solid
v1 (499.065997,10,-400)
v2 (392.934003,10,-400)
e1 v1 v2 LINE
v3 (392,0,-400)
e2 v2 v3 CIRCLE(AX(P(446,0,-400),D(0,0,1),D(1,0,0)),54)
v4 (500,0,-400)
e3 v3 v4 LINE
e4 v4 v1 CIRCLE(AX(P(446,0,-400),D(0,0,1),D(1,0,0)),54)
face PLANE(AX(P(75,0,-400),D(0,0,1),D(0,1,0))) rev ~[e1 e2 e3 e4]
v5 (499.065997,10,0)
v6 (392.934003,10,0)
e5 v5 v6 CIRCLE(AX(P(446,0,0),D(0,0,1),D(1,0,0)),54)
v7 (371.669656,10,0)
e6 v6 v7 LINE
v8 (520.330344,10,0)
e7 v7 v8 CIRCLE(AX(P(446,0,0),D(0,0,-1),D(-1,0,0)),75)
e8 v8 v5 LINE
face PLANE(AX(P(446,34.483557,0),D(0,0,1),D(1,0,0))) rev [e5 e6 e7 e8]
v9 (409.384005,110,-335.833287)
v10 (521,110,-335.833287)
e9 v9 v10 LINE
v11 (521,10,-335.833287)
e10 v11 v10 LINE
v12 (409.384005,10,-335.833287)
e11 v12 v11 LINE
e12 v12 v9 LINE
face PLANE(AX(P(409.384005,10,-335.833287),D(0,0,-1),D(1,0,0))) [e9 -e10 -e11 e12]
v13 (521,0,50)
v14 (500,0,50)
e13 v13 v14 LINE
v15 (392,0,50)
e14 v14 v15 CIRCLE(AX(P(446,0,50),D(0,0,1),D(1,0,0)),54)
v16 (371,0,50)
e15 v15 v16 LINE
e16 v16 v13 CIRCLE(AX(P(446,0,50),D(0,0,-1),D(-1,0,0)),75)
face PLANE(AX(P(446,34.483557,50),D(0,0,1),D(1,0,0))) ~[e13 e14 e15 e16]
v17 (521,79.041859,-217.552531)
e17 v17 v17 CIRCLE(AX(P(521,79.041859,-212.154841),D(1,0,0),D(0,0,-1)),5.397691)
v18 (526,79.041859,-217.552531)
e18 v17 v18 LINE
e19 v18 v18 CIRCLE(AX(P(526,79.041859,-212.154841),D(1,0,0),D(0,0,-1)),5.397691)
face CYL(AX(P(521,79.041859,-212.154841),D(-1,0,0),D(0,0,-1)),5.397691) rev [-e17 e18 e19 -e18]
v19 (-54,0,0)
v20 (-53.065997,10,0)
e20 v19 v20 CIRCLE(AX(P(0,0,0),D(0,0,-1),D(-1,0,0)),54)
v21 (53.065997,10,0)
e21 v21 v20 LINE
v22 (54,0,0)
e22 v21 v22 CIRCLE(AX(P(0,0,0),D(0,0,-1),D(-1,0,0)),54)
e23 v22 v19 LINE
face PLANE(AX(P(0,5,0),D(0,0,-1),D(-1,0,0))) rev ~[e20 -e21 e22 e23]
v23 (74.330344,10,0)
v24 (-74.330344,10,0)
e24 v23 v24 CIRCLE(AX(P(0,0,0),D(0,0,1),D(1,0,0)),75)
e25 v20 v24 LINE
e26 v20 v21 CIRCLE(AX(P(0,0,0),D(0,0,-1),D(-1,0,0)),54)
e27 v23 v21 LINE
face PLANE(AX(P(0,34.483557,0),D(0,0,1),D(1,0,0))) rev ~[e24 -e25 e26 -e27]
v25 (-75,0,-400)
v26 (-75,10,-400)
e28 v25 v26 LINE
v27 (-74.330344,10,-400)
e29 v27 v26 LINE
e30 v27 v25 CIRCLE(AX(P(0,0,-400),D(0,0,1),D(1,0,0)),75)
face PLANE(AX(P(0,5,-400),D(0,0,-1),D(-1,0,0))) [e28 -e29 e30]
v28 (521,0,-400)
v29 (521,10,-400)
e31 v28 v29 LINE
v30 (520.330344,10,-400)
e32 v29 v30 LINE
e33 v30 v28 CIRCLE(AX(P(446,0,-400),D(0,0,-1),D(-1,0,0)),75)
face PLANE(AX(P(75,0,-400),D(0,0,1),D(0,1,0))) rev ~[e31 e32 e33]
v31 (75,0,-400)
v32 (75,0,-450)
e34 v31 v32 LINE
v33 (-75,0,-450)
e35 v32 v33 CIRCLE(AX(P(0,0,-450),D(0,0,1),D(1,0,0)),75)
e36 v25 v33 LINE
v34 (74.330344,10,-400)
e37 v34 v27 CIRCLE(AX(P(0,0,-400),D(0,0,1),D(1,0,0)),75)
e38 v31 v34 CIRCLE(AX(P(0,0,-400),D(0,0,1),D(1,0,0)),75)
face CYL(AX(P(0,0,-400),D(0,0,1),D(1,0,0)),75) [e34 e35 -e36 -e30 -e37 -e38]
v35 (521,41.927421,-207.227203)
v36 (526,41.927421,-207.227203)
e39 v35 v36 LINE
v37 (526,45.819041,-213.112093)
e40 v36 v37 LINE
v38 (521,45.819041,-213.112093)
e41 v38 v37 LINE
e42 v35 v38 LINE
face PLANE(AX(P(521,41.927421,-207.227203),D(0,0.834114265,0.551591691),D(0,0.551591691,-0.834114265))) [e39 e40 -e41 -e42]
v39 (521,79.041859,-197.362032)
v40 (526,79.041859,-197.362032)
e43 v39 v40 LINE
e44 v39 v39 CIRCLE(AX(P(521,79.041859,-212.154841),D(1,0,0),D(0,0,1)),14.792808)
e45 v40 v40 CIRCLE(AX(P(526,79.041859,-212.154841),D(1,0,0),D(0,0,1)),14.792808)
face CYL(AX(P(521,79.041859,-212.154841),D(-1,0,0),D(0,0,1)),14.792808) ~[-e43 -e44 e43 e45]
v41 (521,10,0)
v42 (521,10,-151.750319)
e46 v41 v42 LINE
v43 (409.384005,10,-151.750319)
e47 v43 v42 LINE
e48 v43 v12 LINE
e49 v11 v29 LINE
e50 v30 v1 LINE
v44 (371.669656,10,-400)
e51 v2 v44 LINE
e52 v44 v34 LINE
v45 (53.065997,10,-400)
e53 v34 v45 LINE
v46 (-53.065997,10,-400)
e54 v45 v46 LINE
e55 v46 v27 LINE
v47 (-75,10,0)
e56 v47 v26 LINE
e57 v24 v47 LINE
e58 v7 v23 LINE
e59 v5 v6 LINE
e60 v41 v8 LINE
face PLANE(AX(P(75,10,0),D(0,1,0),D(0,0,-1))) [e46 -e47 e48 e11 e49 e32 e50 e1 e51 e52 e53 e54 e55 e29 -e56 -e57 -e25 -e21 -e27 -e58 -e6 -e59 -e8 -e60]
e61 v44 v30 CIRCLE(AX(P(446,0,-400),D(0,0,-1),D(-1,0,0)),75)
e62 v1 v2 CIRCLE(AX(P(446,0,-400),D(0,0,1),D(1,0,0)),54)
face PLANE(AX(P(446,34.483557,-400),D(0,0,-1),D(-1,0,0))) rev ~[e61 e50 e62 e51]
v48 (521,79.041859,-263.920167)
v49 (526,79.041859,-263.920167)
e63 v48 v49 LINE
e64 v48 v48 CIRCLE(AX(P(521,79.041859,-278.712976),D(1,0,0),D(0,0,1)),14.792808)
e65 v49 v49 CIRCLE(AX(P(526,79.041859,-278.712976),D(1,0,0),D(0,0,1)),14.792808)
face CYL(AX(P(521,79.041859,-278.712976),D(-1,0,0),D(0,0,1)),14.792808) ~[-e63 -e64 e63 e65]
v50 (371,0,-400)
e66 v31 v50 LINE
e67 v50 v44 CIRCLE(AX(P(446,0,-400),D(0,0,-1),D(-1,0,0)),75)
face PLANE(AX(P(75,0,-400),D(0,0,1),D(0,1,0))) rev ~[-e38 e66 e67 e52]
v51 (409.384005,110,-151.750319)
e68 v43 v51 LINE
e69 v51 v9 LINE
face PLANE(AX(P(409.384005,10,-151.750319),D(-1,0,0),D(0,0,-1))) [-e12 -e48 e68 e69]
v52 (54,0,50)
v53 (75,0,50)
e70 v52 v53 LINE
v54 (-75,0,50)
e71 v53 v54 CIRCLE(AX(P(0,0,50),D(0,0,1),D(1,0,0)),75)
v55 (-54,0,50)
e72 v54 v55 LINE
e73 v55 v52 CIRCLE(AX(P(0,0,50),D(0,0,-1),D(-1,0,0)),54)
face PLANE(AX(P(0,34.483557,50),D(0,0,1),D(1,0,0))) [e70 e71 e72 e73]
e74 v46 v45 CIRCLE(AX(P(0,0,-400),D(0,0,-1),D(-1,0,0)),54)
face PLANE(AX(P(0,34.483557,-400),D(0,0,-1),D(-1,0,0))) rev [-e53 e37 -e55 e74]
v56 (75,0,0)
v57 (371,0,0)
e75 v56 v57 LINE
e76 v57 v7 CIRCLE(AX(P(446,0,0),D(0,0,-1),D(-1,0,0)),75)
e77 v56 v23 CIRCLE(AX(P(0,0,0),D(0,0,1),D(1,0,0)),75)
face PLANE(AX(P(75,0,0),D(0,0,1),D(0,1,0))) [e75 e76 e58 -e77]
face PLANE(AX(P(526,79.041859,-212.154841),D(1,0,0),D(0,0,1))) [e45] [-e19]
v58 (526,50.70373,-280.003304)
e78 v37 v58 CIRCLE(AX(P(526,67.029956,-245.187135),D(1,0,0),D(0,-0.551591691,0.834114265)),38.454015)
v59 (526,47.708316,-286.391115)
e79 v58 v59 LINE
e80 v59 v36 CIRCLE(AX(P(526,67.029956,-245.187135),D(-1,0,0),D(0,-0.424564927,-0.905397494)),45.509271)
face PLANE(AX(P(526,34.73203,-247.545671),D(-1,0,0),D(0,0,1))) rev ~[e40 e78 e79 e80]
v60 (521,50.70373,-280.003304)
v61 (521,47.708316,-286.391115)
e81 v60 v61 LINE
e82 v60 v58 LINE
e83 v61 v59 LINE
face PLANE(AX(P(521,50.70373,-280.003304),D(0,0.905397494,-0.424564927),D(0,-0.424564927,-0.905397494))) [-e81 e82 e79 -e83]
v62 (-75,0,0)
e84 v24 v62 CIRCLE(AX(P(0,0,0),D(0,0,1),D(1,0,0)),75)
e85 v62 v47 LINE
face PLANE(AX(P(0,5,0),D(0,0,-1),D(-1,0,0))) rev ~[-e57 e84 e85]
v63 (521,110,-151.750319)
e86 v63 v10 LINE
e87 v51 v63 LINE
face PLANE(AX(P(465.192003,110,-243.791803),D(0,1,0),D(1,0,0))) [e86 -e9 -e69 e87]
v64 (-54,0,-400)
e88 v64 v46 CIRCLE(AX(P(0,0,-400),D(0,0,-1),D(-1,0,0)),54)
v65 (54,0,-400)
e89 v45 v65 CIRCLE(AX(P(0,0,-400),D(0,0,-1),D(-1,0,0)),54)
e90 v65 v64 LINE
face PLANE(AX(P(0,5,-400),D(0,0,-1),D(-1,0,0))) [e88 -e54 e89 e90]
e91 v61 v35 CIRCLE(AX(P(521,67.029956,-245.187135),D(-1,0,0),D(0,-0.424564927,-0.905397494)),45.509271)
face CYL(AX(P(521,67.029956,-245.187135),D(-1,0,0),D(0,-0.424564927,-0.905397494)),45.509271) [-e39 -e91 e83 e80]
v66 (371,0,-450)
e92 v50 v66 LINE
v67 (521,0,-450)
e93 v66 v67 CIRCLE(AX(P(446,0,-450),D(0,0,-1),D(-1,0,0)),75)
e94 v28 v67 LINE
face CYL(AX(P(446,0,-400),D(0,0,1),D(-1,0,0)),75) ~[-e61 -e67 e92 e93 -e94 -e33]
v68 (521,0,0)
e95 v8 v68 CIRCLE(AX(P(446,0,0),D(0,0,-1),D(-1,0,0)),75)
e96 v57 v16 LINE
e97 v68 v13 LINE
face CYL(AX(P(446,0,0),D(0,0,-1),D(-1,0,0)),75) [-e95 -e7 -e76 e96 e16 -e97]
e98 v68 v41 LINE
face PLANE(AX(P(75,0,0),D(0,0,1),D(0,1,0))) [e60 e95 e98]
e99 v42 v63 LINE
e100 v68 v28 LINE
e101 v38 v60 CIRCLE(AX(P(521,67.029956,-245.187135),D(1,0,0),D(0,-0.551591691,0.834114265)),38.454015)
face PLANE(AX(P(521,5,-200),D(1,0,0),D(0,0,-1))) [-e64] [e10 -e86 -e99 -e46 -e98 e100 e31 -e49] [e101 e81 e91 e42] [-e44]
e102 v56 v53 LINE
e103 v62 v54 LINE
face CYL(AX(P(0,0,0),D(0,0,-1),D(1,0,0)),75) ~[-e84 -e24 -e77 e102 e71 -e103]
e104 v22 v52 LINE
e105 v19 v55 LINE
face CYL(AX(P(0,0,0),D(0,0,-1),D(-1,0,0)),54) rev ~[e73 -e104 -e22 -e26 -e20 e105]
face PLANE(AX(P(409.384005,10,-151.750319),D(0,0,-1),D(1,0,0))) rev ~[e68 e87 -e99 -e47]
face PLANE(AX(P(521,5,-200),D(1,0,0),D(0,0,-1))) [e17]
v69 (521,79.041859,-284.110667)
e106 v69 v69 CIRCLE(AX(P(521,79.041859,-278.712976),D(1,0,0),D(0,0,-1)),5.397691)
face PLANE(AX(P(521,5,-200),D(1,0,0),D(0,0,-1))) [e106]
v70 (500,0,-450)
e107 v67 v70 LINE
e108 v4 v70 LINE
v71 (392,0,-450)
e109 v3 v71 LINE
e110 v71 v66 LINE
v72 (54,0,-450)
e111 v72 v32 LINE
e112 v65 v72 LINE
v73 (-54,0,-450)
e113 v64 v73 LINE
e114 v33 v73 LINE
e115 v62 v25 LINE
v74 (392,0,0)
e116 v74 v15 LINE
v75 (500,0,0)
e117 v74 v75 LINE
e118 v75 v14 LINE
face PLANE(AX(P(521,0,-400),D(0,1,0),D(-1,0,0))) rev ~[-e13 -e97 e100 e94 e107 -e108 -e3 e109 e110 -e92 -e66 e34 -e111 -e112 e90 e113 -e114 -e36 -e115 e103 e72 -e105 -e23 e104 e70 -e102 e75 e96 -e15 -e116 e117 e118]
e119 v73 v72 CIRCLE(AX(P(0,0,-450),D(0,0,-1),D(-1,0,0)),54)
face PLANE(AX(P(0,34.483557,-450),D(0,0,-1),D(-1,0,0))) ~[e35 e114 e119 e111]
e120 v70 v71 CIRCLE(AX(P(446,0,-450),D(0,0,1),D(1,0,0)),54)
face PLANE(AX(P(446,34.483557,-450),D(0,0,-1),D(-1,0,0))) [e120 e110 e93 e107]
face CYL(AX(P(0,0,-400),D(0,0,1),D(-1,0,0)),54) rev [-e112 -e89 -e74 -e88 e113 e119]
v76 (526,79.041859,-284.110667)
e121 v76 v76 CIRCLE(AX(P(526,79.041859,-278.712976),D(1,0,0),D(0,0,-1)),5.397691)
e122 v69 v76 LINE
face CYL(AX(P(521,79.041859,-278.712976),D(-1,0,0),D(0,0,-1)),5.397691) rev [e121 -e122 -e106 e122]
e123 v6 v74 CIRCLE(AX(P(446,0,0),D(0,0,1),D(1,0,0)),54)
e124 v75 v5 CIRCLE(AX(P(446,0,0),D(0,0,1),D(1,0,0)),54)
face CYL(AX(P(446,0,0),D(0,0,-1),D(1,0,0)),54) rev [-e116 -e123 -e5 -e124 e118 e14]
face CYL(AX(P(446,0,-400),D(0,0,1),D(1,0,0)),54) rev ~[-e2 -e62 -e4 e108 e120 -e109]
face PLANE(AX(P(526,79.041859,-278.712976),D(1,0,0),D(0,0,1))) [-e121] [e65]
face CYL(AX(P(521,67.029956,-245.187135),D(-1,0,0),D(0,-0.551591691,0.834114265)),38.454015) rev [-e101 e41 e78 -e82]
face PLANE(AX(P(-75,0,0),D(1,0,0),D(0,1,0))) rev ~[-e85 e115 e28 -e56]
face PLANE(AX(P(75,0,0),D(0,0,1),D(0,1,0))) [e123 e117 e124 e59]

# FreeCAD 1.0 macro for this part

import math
import FreeCAD as App
import Part
import Sketcher

V = App.Vector

doc = App.newDocument("Part")
body = doc.addObject("PartDesign::Body", "Body")

# Sketch on XY plane
sketch1 = body.newObject("Sketcher::SketchObject", "Sketch")
sketch1.AttachmentSupport = (doc.getObject("XY_Plane"), [""])
sketch1.MapMode = "FlatFace"
sketch1.addGeometry([
    Part.ArcOfCircle(Part.Circle(V(0, 0, 0), V(0, 0, 1), 54), math.radians(0), math.radians(180)),
    Part.LineSegment(V(54, 0, 0), V(75, 0, 0)),
    Part.ArcOfCircle(Part.Circle(V(0, 0, 0), V(0, 0, 1), 75), math.radians(0), math.radians(180)),
    Part.LineSegment(V(-75, 0, 0), V(-54, 0, 0)),
], False)
sketch1.addConstraint([
    Sketcher.Constraint("Coincident", 0, 1, 1, 1),
    Sketcher.Constraint("Coincident", 1, 2, 2, 1),
    Sketcher.Constraint("Coincident", 2, 2, 3, 1),
    Sketcher.Constraint("Coincident", 3, 2, 0, 2),
    Sketcher.Constraint("Horizontal", 1),
    Sketcher.Constraint("Horizontal", 3),
    Sketcher.Constraint("Coincident", 0, 3, -1, 1),
    Sketcher.Constraint("Coincident", 2, 3, -1, 1),
    Sketcher.Constraint("PointOnObject", 0, 1, -1),
    Sketcher.Constraint("PointOnObject", 2, 2, -1),
    Sketcher.Constraint("Radius", 0, 54.0),
    Sketcher.Constraint("Radius", 2, 75.0),
])
pad1 = body.newObject("PartDesign::Pad", "Pad")
pad1.Profile = sketch1
pad1.Length = 50

# Sketch on XY plane
sketch2 = body.newObject("Sketcher::SketchObject", "Sketch001")
sketch2.AttachmentSupport = (doc.getObject("XY_Plane"), [""])
sketch2.MapMode = "FlatFace"
sketch2.addGeometry([
    Part.LineSegment(V(75, 10, 0), V(75, 0, 0)),
    Part.LineSegment(V(75, 0, 0), V(-75, 0, 0)),
    Part.LineSegment(V(-75, 0, 0), V(-75, 10, 0)),
    Part.LineSegment(V(-75, 10, 0), V(75, 10, 0)),
], False)
sketch2.addConstraint([
    Sketcher.Constraint("Coincident", 0, 2, 1, 1),
    Sketcher.Constraint("Coincident", 1, 2, 2, 1),
    Sketcher.Constraint("Coincident", 2, 2, 3, 1),
    Sketcher.Constraint("Coincident", 3, 2, 0, 1),
    Sketcher.Constraint("Vertical", 0),
    Sketcher.Constraint("Horizontal", 1),
    Sketcher.Constraint("Vertical", 2),
    Sketcher.Constraint("Horizontal", 3),
    Sketcher.Constraint("Symmetric", 0, 2, 1, 2, -1, 1),
    Sketcher.Constraint("DistanceX", 1, 2, 1, 1, 150.0),
    Sketcher.Constraint("DistanceY", 0, 2, 0, 1, 10.0),
])
pad2 = body.newObject("PartDesign::Pad", "Pad001")
pad2.Profile = sketch2
pad2.Length = 400
pad2.Reversed = True
doc.recompute()

datumplane = body.newObject("PartDesign::Plane", "DatumPlane")
datumplane.AttachmentSupport = (doc.getObject("XY_Plane"), [""])
datumplane.MapMode = "FlatFace"
datumplane.AttachmentOffset = App.Placement(V(0, 0, -200), App.Rotation())
mirrored = body.newObject("PartDesign::Mirrored", "Mirrored")
mirrored.Originals = [pad1]
mirrored.MirrorPlane = (datumplane, [""])
body.Tip = mirrored

# Sketch on YZ plane
sketch3 = body.newObject("Sketcher::SketchObject", "Sketch002")
sketch3.AttachmentSupport = (doc.getObject("YZ_Plane"), [""])
sketch3.MapMode = "FlatFace"
sketch3.AttachmentOffset = App.Placement(V(0, 0, 75), App.Rotation())
sketch3.addGeometry([
    Part.LineSegment(V(10, 0, 0), V(0, 0, 0)),
    Part.LineSegment(V(0, 0, 0), V(0, -400, 0)),
    Part.LineSegment(V(0, -400, 0), V(10, -400, 0)),
    Part.LineSegment(V(10, -400, 0), V(10, 0, 0)),
], False)
sketch3.addConstraint([
    Sketcher.Constraint("Coincident", 0, 2, 1, 1),
    Sketcher.Constraint("Coincident", 1, 2, 2, 1),
    Sketcher.Constraint("Coincident", 2, 2, 3, 1),
    Sketcher.Constraint("Coincident", 3, 2, 0, 1),
    Sketcher.Constraint("Horizontal", 0),
    Sketcher.Constraint("Vertical", 1),
    Sketcher.Constraint("Horizontal", 2),
    Sketcher.Constraint("Vertical", 3),
    Sketcher.Constraint("Coincident", 0, 2, -1, 1),
    Sketcher.Constraint("DistanceX", 0, 2, 0, 1, 10.0),
    Sketcher.Constraint("DistanceY", 1, 2, 1, 1, 400.0),
])
pad3 = body.newObject("PartDesign::Pad", "Pad002")
pad3.Profile = sketch3
pad3.Length = 446
doc.recompute()

datumplane2 = body.newObject("PartDesign::Plane", "DatumPlane001")
datumplane2.AttachmentSupport = (doc.getObject("YZ_Plane"), [""])
datumplane2.MapMode = "FlatFace"
datumplane2.AttachmentOffset = App.Placement(V(0, 0, 223), App.Rotation())
mirrored2 = body.newObject("PartDesign::Mirrored", "Mirrored001")
mirrored2.Originals = [pad1]
mirrored2.MirrorPlane = (datumplane2, [""])
body.Tip = mirrored2

# Sketch on XY plane
sketch4 = body.newObject("Sketcher::SketchObject", "Sketch003")
sketch4.AttachmentSupport = (doc.getObject("XY_Plane"), [""])
sketch4.MapMode = "FlatFace"
sketch4.AttachmentOffset = App.Placement(V(0, 0, -400), App.Rotation())
sketch4.addGeometry([
    Part.ArcOfCircle(Part.Circle(V(446, 0, 0), V(0, 0, 1), 54), math.radians(0), math.radians(180)),
    Part.LineSegment(V(392, 0, 0), V(371, 0, 0)),
    Part.ArcOfCircle(Part.Circle(V(446, 0, 0), V(0, 0, 1), 75), math.radians(0), math.radians(180)),
    Part.LineSegment(V(521, 0, 0), V(500, 0, 0)),
], False)
sketch4.addConstraint([
    Sketcher.Constraint("Coincident", 0, 2, 1, 1),
    Sketcher.Constraint("Coincident", 1, 2, 2, 2),
    Sketcher.Constraint("Coincident", 2, 1, 3, 1),
    Sketcher.Constraint("Coincident", 3, 2, 0, 1),
    Sketcher.Constraint("Horizontal", 1),
    Sketcher.Constraint("Horizontal", 3),
    Sketcher.Constraint("Coincident", 2, 3, 0, 3),
    Sketcher.Constraint("PointOnObject", 0, 3, -1),
    Sketcher.Constraint("PointOnObject", 0, 2, -1),
    Sketcher.Constraint("PointOnObject", 2, 1, -1),
    Sketcher.Constraint("Radius", 0, 54.0),
    Sketcher.Constraint("Radius", 2, 75.0),
    Sketcher.Constraint("DistanceX", -1, 1, 0, 3, 446.0),
])
pad4 = body.newObject("PartDesign::Pad", "Pad003")
pad4.Profile = sketch4
pad4.Length = 50
pad4.Reversed = True

# Sketch on XZ plane
sketch5 = body.newObject("Sketcher::SketchObject", "Sketch004")
sketch5.AttachmentSupport = (doc.getObject("XZ_Plane"), [""])
sketch5.MapMode = "FlatFace"
sketch5.AttachmentOffset = App.Placement(V(0, 0, -10), App.Rotation())
sketch5.addGeometry([
    Part.LineSegment(V(409, -336, 0), V(409, -152, 0)),
    Part.LineSegment(V(409, -152, 0), V(521, -152, 0)),
    Part.LineSegment(V(521, -152, 0), V(521, -336, 0)),
    Part.LineSegment(V(521, -336, 0), V(409, -336, 0)),
], False)
sketch5.addConstraint([
    Sketcher.Constraint("Coincident", 0, 2, 1, 1),
    Sketcher.Constraint("Coincident", 1, 2, 2, 1),
    Sketcher.Constraint("Coincident", 2, 2, 3, 1),
    Sketcher.Constraint("Coincident", 3, 2, 0, 1),
    Sketcher.Constraint("Vertical", 0),
    Sketcher.Constraint("Horizontal", 1),
    Sketcher.Constraint("Vertical", 2),
    Sketcher.Constraint("Horizontal", 3),
    Sketcher.Constraint("DistanceX", -1, 1, 1, 2, 521.0),
    Sketcher.Constraint("DistanceY", 0, 1, 0, 2, 184.082968),
    Sketcher.Constraint("DistanceX", 1, 1, 1, 2, 111.615995),
    Sketcher.Constraint("DistanceY", 0, 2, -1, 1, 151.750319),
])
pad5 = body.newObject("PartDesign::Pad", "Pad004")
pad5.Profile = sketch5
pad5.Length = 100
pad5.Reversed = True

# Sketch on YZ plane
sketch6 = body.newObject("Sketcher::SketchObject", "Sketch005")
sketch6.AttachmentSupport = (doc.getObject("YZ_Plane"), [""])
sketch6.MapMode = "FlatFace"
sketch6.AttachmentOffset = App.Placement(V(0, 0, 521), App.Rotation())
sketch6.addGeometry([
    Part.Circle(V(79, -212, 0), V(0, 0, 1), 15),  # 0
    Part.Circle(V(79, -212, 0), V(0, 0, 1), 5),  # 1
    Part.Circle(V(79, -279, 0), V(0, 0, 1), 15),  # 2
    Part.Circle(V(79, -279, 0), V(0, 0, 1), 5),  # 3
    Part.LineSegment(V(48, -286, 0), V(51, -280, 0)),  # 4
    Part.ArcOfCircle(Part.Circle(V(67, -245, 0), V(0, 0, 1), 38), math.radians(123), math.radians(245)),  # 5
    Part.LineSegment(V(46, -213, 0), V(42, -207, 0)),  # 6
    Part.ArcOfCircle(Part.Circle(V(67, -245, 0), V(0, 0, 1), 46), math.radians(123), math.radians(245)),  # 7
], False)
sketch6.addConstraint([
    Sketcher.Constraint("Coincident", 4, 2, 5, 2),
    Sketcher.Constraint("Coincident", 5, 1, 6, 1),
    Sketcher.Constraint("Coincident", 6, 2, 7, 1),
    Sketcher.Constraint("Coincident", 7, 2, 4, 1),
    Sketcher.Constraint("Coincident", 1, 3, 0, 3),
    Sketcher.Constraint("Coincident", 3, 3, 2, 3),
    Sketcher.Constraint("Coincident", 7, 3, 5, 3),
    Sketcher.Constraint("Equal", 0, 2),
    Sketcher.Constraint("Equal", 1, 3),
    Sketcher.Constraint("Vertical", 1, 3, 2, 3),
    Sketcher.Constraint("Diameter", 1, 10.795382),
    Sketcher.Constraint("Radius", 7, 45.509271),
    Sketcher.Constraint("Diameter", 0, 29.585616),
    Sketcher.Constraint("Radius", 5, 38.454015),
    Sketcher.Constraint("DistanceX", -1, 1, 0, 3, 79.041859),
    Sketcher.Constraint("DistanceY", 0, 3, -1, 1, 212.154841),
    Sketcher.Constraint("DistanceX", -1, 1, 4, 2, 50.70373),
    Sketcher.Constraint("DistanceX", -1, 1, 5, 1, 45.819041),
    Sketcher.Constraint("DistanceX", -1, 1, 6, 2, 41.927421),
    Sketcher.Constraint("DistanceY", 2, 3, 5, 3, 33.52584),
    Sketcher.Constraint("DistanceY", 4, 2, 2, 3, 1.290329),
    Sketcher.Constraint("DistanceY", 7, 2, 4, 2, 6.387811),
    Sketcher.Constraint("DistanceY", 2, 3, -1, 1, 278.712976),
])
pad6 = body.newObject("PartDesign::Pad", "Pad005")
pad6.Profile = sketch6
pad6.Length = 5

doc.recompute()
